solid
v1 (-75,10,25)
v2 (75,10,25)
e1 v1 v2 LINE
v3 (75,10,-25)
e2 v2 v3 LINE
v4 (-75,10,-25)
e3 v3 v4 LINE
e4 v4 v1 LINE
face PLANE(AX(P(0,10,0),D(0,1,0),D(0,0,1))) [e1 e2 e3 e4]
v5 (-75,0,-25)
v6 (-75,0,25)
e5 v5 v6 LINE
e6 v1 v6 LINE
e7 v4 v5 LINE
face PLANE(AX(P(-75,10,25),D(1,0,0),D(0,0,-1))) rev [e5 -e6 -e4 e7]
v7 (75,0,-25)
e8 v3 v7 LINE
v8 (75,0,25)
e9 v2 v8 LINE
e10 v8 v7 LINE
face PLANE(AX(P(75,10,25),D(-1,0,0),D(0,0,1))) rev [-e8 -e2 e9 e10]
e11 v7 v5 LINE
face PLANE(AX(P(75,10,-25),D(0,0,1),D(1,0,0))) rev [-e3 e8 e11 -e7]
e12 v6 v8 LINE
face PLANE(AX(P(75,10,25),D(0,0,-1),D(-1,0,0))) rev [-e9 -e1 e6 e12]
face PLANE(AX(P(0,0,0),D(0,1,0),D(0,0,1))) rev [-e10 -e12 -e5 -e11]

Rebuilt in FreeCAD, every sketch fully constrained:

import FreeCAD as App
import Part
import Sketcher

doc = App.newDocument("Part")
params = doc.addObject("Spreadsheet::Sheet", "Params")
for row, (alias, value) in enumerate([
    ("sketch1_width", "150 mm"),
    ("sketch1_height", "50 mm"),
    ("pad1_length", "10 mm"),
], start=1):
    params.set(f"A{row}", alias)
    params.set(f"B{row}", "=" + value)
    params.setAlias(f"B{row}", alias)

body = doc.addObject("PartDesign::Body", "Body")

# Sketch on XZ plane
sketch1 = body.newObject("Sketcher::SketchObject", "Sketch")
sketch1.AttachmentSupport = (doc.getObject("XZ_Plane"), [""])
sketch1.MapMode = "FlatFace"
sketch1.addGeometry(Part.LineSegment(App.Vector(-75, -25, 0), App.Vector(-75, 25, 0)), False)
sketch1.addGeometry(Part.LineSegment(App.Vector(-75, 25, 0), App.Vector(75, 25, 0)), False)
sketch1.addGeometry(Part.LineSegment(App.Vector(75, 25, 0), App.Vector(75, -25, 0)), False)
sketch1.addGeometry(Part.LineSegment(App.Vector(75, -25, 0), App.Vector(-75, -25, 0)), False)
sketch1.addConstraint(Sketcher.Constraint("Coincident", 0, 2, 1, 1))
sketch1.addConstraint(Sketcher.Constraint("Coincident", 1, 2, 2, 1))
sketch1.addConstraint(Sketcher.Constraint("Coincident", 2, 2, 3, 1))
sketch1.addConstraint(Sketcher.Constraint("Coincident", 3, 2, 0, 1))
sketch1.addConstraint(Sketcher.Constraint("Vertical", 0))
sketch1.addConstraint(Sketcher.Constraint("Horizontal", 1))
sketch1.addConstraint(Sketcher.Constraint("Vertical", 2))
sketch1.addConstraint(Sketcher.Constraint("Horizontal", 3))
sketch1.addConstraint(Sketcher.Constraint("Symmetric", 0, 2, 2, 2, -1, 1))
sketch1.addConstraint(Sketcher.Constraint("DistanceX", 1, 1, 1, 2, 150.0))
sketch1.addConstraint(Sketcher.Constraint("DistanceY", 0, 1, 0, 2, 50.0))
sketch1.setExpression("Constraints[9]", "Params.sketch1_width")
sketch1.setExpression("Constraints[10]", "Params.sketch1_height")
pad1 = body.newObject("PartDesign::Pad", "Pad")
pad1.Profile = sketch1
pad1.setExpression("Length", "Params.pad1_length")
pad1.Reversed = True

doc.recompute()
